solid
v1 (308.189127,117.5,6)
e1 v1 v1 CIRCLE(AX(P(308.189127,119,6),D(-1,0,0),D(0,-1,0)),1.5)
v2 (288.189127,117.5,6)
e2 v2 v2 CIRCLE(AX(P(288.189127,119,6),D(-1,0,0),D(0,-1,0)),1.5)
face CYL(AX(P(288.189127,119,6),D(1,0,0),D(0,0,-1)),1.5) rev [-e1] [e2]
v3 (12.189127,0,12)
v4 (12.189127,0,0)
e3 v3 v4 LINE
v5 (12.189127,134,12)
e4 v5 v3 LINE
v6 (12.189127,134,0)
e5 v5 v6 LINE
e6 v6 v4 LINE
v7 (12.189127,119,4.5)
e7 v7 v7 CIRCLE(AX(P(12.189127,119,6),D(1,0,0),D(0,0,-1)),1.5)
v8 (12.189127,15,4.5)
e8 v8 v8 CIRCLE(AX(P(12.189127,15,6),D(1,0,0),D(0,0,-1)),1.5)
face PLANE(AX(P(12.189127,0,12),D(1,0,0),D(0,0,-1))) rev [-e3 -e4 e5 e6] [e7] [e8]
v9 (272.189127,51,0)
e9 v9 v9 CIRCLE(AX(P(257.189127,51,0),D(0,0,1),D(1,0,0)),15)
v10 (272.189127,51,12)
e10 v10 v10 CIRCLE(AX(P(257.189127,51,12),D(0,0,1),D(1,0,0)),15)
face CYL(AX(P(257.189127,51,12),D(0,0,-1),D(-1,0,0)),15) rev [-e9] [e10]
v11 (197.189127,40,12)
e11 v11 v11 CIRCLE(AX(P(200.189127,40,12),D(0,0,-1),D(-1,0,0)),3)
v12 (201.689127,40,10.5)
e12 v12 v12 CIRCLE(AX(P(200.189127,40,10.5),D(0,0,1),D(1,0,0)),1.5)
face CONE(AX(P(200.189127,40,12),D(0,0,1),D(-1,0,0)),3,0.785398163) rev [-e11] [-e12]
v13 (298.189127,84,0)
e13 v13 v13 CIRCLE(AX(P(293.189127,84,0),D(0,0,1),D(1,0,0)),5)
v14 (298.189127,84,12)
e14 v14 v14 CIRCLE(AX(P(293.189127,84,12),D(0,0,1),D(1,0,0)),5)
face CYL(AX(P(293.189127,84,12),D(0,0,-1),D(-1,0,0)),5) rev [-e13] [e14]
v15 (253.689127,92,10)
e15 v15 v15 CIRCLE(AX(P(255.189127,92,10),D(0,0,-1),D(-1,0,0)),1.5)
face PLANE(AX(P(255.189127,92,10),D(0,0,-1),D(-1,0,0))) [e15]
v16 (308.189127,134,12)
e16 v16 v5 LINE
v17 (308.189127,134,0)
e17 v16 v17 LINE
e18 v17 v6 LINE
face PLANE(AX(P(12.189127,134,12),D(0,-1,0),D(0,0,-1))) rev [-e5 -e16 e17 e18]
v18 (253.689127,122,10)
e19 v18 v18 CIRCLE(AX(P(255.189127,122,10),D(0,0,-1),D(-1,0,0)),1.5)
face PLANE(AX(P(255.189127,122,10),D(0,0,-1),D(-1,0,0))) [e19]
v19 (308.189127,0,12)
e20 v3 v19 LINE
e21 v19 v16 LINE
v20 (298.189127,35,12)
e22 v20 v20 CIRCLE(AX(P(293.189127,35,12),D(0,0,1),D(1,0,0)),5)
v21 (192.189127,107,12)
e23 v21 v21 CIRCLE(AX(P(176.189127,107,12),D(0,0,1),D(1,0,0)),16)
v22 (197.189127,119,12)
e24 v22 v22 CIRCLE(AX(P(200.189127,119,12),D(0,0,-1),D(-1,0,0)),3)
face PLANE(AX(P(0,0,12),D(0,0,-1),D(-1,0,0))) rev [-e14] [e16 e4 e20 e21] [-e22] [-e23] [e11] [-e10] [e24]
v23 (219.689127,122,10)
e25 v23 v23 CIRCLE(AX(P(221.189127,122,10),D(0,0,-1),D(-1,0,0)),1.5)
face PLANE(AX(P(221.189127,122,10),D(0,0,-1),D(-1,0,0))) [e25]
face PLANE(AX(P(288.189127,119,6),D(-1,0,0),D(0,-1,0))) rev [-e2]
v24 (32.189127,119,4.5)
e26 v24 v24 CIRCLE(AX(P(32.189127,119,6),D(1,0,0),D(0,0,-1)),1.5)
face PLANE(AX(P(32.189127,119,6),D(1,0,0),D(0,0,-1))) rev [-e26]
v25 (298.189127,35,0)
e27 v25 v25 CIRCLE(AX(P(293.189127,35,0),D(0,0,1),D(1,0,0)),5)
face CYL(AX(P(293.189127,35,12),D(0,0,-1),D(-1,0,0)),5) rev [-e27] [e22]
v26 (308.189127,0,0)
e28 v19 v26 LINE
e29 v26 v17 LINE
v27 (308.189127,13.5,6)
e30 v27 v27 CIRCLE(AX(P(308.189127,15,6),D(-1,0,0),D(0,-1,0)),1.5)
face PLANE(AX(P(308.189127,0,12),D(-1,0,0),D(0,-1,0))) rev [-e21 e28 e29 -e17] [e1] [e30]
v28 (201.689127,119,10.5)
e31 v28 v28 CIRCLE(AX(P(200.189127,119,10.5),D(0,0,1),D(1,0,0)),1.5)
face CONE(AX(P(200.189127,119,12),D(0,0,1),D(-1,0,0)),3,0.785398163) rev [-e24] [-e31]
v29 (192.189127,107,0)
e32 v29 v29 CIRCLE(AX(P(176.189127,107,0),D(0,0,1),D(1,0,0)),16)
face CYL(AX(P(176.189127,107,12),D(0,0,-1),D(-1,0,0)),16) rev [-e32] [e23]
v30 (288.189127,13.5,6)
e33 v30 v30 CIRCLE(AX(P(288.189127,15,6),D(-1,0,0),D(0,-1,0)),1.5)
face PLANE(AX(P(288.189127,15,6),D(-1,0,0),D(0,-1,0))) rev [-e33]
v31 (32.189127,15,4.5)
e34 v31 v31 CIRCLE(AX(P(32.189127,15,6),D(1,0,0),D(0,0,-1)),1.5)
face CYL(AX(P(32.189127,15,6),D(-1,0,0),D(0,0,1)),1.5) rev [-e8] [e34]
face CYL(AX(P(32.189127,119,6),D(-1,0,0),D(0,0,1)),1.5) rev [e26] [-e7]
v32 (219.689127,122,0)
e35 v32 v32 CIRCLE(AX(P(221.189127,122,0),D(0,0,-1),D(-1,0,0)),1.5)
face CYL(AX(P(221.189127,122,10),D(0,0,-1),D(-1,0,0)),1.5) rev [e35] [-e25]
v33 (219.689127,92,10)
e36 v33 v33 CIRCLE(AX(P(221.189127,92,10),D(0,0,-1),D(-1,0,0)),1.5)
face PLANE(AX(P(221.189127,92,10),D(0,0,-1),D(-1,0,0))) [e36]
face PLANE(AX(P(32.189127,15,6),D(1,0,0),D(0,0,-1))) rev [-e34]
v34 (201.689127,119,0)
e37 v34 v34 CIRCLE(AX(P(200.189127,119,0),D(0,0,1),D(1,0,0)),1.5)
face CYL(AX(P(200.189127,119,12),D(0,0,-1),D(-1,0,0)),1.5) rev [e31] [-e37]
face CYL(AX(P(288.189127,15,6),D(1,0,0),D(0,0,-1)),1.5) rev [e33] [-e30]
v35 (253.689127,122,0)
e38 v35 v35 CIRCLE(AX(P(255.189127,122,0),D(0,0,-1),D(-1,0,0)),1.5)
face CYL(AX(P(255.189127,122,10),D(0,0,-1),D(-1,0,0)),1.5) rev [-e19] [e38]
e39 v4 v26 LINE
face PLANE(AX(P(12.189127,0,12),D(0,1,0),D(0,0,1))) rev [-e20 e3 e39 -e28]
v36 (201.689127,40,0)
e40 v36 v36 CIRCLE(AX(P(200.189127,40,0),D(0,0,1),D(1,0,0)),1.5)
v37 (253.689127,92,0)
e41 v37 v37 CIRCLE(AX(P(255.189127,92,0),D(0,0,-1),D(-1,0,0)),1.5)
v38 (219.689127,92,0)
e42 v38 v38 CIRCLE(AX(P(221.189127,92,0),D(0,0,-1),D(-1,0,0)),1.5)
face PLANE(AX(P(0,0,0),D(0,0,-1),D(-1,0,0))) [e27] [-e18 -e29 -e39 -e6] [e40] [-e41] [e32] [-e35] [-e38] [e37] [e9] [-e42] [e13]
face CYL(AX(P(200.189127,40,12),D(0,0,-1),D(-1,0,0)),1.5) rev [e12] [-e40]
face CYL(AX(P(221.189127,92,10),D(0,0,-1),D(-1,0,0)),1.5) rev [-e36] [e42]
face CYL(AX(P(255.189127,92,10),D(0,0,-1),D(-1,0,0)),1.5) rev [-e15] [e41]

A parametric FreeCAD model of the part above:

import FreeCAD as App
import Part
import Sketcher

doc = App.newDocument("Part")
body = doc.addObject("PartDesign::Body", "Body")

sketch1 = body.newObject("Sketcher::SketchObject", "Sketch")
sketch1.AttachmentSupport = (doc.getObject("XY_Plane"), [""])
sketch1.MapMode = "FlatFace"
sketch1.addGeometry([
    Part.LineSegment(App.Vector(12.2, 134, 0), App.Vector(12.2, 0, 0)),
    Part.LineSegment(App.Vector(12.2, 0, 0), App.Vector(308.2, 0, 0)),
    Part.LineSegment(App.Vector(308.2, 0, 0), App.Vector(308.2, 134, 0)),
    Part.LineSegment(App.Vector(308.2, 134, 0), App.Vector(12.2, 134, 0)),
    Part.Circle(App.Vector(200.2, 40, 0), App.Vector(0, 0, 1), 1.5),
    Part.Circle(App.Vector(257.2, 51, 0), App.Vector(0, 0, 1), 15),
    Part.Circle(App.Vector(293.2, 35, 0), App.Vector(0, 0, 1), 5),
    Part.Circle(App.Vector(176.2, 107, 0), App.Vector(0, 0, 1), 16),
    Part.Circle(App.Vector(200.2, 119, 0), App.Vector(0, 0, 1), 1.5),
    Part.Circle(App.Vector(293.2, 84, 0), App.Vector(0, 0, 1), 5),
], False)
sketch1.addConstraint([
    Sketcher.Constraint("Coincident", 0, 2, 1, 1),
    Sketcher.Constraint("Coincident", 1, 2, 2, 1),
    Sketcher.Constraint("Coincident", 2, 2, 3, 1),
    Sketcher.Constraint("Coincident", 3, 2, 0, 1),
    Sketcher.Constraint("Vertical", 0),
    Sketcher.Constraint("Horizontal", 1),
    Sketcher.Constraint("Vertical", 2),
    Sketcher.Constraint("Horizontal", 3),
    Sketcher.Constraint("Equal", 4, 8),
    Sketcher.Constraint("Equal", 6, 9),
    Sketcher.Constraint("PointOnObject", 0, 2, -1),
    Sketcher.Constraint("Vertical", 4, 3, 8, 3),
    Sketcher.Constraint("Vertical", 6, 3, 9, 3),
    Sketcher.Constraint("Diameter", 4, 3.0),
    Sketcher.Constraint("Diameter", 5, 30.0),
    Sketcher.Constraint("Diameter", 6, 10.0),
    Sketcher.Constraint("Diameter", 7, 32.0),
    Sketcher.Constraint("DistanceX", 1, 1, 1, 2, 296.0),
    Sketcher.Constraint("DistanceY", 0, 2, 0, 1, 134.0),
    Sketcher.Constraint("DistanceY", -1, 1, 4, 3, 40.0),
    Sketcher.Constraint("DistanceY", -1, 1, 5, 3, 51.0),
    Sketcher.Constraint("DistanceY", -1, 1, 6, 3, 35.0),
    Sketcher.Constraint("DistanceY", -1, 1, 7, 3, 107.0),
    Sketcher.Constraint("DistanceY", -1, 1, 8, 3, 119.0),
    Sketcher.Constraint("DistanceY", -1, 1, 9, 3, 84.0),
    Sketcher.Constraint("DistanceX", 4, 3, 5, 3, 57.0),
    Sketcher.Constraint("DistanceX", 5, 3, 6, 3, 36.0),
    Sketcher.Constraint("DistanceX", 7, 3, 4, 3, 24.0),
    Sketcher.Constraint("DistanceX", 0, 2, 4, 3, 188.0),
    Sketcher.Constraint("DistanceX", -1, 1, 4, 3, 200.189127),
])
pad1 = body.newObject("PartDesign::Pad", "Pad")
pad1.Profile = sketch1
pad1.Length = 12

sketch2 = body.newObject("Sketcher::SketchObject", "Sketch001")
sketch2.AttachmentSupport = (doc.getObject("YZ_Plane"), [""])
sketch2.MapMode = "FlatFace"
sketch2.AttachmentOffset = App.Placement(App.Vector(0, 0, 12.189127), App.Rotation())
sketch2.addGeometry([
    Part.Circle(App.Vector(119, 6, 0), App.Vector(0, 0, 1), 1.5),
    Part.Circle(App.Vector(15, 6, 0), App.Vector(0, 0, 1), 1.5),
], False)
sketch2.addConstraint([
    Sketcher.Constraint("Equal", 0, 1),
    Sketcher.Constraint("Horizontal", 0, 3, 1, 3),
    Sketcher.Constraint("Diameter", 0, 3.0),
    Sketcher.Constraint("DistanceX", -1, 1, 0, 3, 119.0),
    Sketcher.Constraint("DistanceY", -1, 1, 0, 3, 6.0),
    Sketcher.Constraint("DistanceX", -1, 1, 1, 3, 15.0),
])
pocket1 = body.newObject("PartDesign::Pocket", "Pocket")
pocket1.Profile = sketch2
pocket1.Length = 20
pocket1.Reversed = True

sketch3 = body.newObject("Sketcher::SketchObject", "Sketch002")
sketch3.AttachmentSupport = (doc.getObject("YZ_Plane"), [""])
sketch3.MapMode = "FlatFace"
sketch3.AttachmentOffset = App.Placement(App.Vector(0, 0, 288.189127), App.Rotation())
sketch3.addGeometry([
    Part.Circle(App.Vector(119, 6, 0), App.Vector(0, 0, 1), 1.5),
    Part.Circle(App.Vector(15, 6, 0), App.Vector(0, 0, 1), 1.5),
], False)
sketch3.addConstraint([
    Sketcher.Constraint("Equal", 0, 1),
    Sketcher.Constraint("Horizontal", 0, 3, 1, 3),
    Sketcher.Constraint("Diameter", 0, 3.0),
    Sketcher.Constraint("DistanceX", -1, 1, 0, 3, 119.0),
    Sketcher.Constraint("DistanceY", -1, 1, 0, 3, 6.0),
    Sketcher.Constraint("DistanceX", -1, 1, 1, 3, 15.0),
])
pocket2 = body.newObject("PartDesign::Pocket", "Pocket001")
pocket2.Profile = sketch3
pocket2.Length = 20.000001
pocket2.Reversed = True

sketch4 = body.newObject("Sketcher::SketchObject", "Sketch003")
sketch4.AttachmentSupport = (doc.getObject("YZ_Plane"), [""])
sketch4.MapMode = "FlatFace"
sketch4.AttachmentOffset = App.Placement(App.Vector(0, 0, 200.189127), App.Rotation())
sketch4.addGeometry([
    Part.LineSegment(App.Vector(119, 12, 0), App.Vector(116, 12, 0)),
    Part.LineSegment(App.Vector(116, 12, 0), App.Vector(119, 9, 0)),
    Part.LineSegment(App.Vector(119, 9, 0), App.Vector(119, 12, 0)),
], False)
sketch4.addGeometry(Part.LineSegment(App.Vector(119, 12, 0), App.Vector(119, 9, 0)), True)
sketch4.addConstraint([
    Sketcher.Constraint("Coincident", 0, 2, 1, 1),
    Sketcher.Constraint("Coincident", 1, 2, 2, 1),
    Sketcher.Constraint("Coincident", 2, 2, 0, 1),
    Sketcher.Constraint("Horizontal", 0),
    Sketcher.Constraint("Vertical", 2),
    Sketcher.Constraint("Vertical", 3),
    Sketcher.Constraint("Coincident", 3, 1, 2, 2),
    Sketcher.Constraint("Equal", 0, 2),
    Sketcher.Constraint("Equal", 2, 3),
    Sketcher.Constraint("DistanceX", 0, 2, 0, 1, 3.0),
    Sketcher.Constraint("DistanceX", -1, 1, 0, 2, 116.0),
    Sketcher.Constraint("DistanceY", -1, 1, 0, 2, 12.0),
])
groove = body.newObject("PartDesign::Groove", "Groove")
groove.Profile = sketch4
groove.ReferenceAxis = (sketch4, ["Axis0"])
groove.Angle = 360

sketch5 = body.newObject("Sketcher::SketchObject", "Sketch004")
sketch5.AttachmentSupport = (doc.getObject("YZ_Plane"), [""])
sketch5.MapMode = "FlatFace"
sketch5.AttachmentOffset = App.Placement(App.Vector(0, 0, 200.189127), App.Rotation())
sketch5.addGeometry([
    Part.LineSegment(App.Vector(40, 12, 0), App.Vector(37, 12, 0)),
    Part.LineSegment(App.Vector(37, 12, 0), App.Vector(40, 9, 0)),
    Part.LineSegment(App.Vector(40, 9, 0), App.Vector(40, 12, 0)),
], False)
sketch5.addGeometry(Part.LineSegment(App.Vector(40, 12, 0), App.Vector(40, 9, 0)), True)
sketch5.addConstraint([
    Sketcher.Constraint("Coincident", 0, 2, 1, 1),
    Sketcher.Constraint("Coincident", 1, 2, 2, 1),
    Sketcher.Constraint("Coincident", 2, 2, 0, 1),
    Sketcher.Constraint("Horizontal", 0),
    Sketcher.Constraint("Vertical", 2),
    Sketcher.Constraint("Vertical", 3),
    Sketcher.Constraint("Coincident", 3, 1, 2, 2),
    Sketcher.Constraint("Equal", 0, 2),
    Sketcher.Constraint("Equal", 2, 3),
    Sketcher.Constraint("DistanceX", 0, 2, 0, 1, 3.0),
    Sketcher.Constraint("DistanceX", -1, 1, 0, 2, 37.0),
    Sketcher.Constraint("DistanceY", -1, 1, 0, 2, 12.0),
])
groove2 = body.newObject("PartDesign::Groove", "Groove001")
groove2.Profile = sketch5
groove2.ReferenceAxis = (sketch5, ["Axis0"])
groove2.Angle = 360

sketch6 = body.newObject("Sketcher::SketchObject", "Sketch005")
sketch6.AttachmentSupport = (doc.getObject("XY_Plane"), [""])
sketch6.MapMode = "FlatFace"
sketch6.addGeometry([
    Part.Circle(App.Vector(221.2, 122, 0), App.Vector(0, 0, 1), 1.5),
    Part.Circle(App.Vector(255.2, 122, 0), App.Vector(0, 0, 1), 1.5),
    Part.Circle(App.Vector(221.2, 92, 0), App.Vector(0, 0, 1), 1.5),
    Part.Circle(App.Vector(255.2, 92, 0), App.Vector(0, 0, 1), 1.5),
], False)
sketch6.addConstraint([
    Sketcher.Constraint("Equal", 0, 1),
    Sketcher.Constraint("Equal", 1, 2),
    Sketcher.Constraint("Equal", 2, 3),
    Sketcher.Constraint("Horizontal", 0, 3, 1, 3),
    Sketcher.Constraint("Horizontal", 2, 3, 3, 3),
    Sketcher.Constraint("Vertical", 0, 3, 2, 3),
    Sketcher.Constraint("Vertical", 1, 3, 3, 3),
    Sketcher.Constraint("Diameter", 0, 3.0),
    Sketcher.Constraint("DistanceY", -1, 1, 0, 3, 122.0),
    Sketcher.Constraint("DistanceY", -1, 1, 2, 3, 92.0),
    Sketcher.Constraint("DistanceX", 0, 3, 1, 3, 34.0),
    Sketcher.Constraint("DistanceX", -1, 1, 0, 3, 221.189127),
])
pocket3 = body.newObject("PartDesign::Pocket", "Pocket002")
pocket3.Profile = sketch6
pocket3.Length = 10
pocket3.Reversed = True

doc.recompute()
